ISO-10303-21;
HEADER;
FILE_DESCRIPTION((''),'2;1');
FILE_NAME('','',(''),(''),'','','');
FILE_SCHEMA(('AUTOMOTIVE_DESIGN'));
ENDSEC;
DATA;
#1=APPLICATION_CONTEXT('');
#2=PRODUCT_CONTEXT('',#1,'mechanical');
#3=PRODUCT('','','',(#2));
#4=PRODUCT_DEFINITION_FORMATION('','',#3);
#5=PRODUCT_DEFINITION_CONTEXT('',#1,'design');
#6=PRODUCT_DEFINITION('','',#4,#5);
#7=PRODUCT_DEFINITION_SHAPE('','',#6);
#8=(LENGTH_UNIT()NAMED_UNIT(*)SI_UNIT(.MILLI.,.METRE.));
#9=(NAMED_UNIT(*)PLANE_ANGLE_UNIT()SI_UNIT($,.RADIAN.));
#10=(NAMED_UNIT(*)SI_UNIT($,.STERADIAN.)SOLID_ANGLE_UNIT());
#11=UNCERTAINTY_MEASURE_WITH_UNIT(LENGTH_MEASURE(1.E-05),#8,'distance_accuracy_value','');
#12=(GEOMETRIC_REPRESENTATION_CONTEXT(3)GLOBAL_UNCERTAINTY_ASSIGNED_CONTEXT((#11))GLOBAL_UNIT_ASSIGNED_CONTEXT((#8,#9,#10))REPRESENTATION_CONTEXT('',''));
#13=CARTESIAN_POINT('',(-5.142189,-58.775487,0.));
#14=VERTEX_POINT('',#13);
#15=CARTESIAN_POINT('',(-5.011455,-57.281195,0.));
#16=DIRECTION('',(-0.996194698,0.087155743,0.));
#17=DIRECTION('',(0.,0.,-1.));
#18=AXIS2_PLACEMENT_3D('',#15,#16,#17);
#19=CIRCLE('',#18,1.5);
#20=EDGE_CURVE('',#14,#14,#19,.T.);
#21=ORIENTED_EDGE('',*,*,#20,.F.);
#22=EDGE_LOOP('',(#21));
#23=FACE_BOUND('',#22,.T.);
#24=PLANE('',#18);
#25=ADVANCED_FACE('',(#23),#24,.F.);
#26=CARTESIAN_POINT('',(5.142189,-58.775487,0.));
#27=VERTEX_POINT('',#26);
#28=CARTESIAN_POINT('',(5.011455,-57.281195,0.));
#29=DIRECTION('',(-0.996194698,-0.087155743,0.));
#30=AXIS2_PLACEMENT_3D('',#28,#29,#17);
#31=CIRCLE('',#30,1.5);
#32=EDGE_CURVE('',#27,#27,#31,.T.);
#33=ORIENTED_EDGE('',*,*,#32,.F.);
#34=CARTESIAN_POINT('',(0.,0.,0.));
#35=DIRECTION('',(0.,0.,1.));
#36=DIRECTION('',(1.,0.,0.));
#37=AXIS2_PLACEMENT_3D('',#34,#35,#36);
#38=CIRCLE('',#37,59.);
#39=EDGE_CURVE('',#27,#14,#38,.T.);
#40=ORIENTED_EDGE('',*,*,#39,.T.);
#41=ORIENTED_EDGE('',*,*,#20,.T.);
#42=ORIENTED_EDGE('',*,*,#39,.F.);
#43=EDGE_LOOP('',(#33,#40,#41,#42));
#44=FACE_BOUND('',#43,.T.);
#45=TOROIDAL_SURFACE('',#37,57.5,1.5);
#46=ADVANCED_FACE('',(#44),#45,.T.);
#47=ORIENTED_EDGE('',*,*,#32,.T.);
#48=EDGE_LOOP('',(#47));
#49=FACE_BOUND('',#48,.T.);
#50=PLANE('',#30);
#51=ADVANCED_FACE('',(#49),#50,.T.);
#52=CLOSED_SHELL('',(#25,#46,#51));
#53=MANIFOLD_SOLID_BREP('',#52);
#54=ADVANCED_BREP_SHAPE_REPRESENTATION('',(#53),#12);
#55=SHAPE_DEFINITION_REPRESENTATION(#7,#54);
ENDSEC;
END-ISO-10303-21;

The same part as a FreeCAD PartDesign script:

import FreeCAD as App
import Part
import Sketcher

V = App.Vector

doc = App.newDocument("Part")
params = doc.addObject("Spreadsheet::Sheet", "Params")
for row, (alias, value) in enumerate([
    ("sketch1_diameter", "3 mm"),
    ("revolution_angle", "175 deg"),
    ("sketch2_diameter", "3 mm"),
    ("revolution2_angle", "175 deg"),
], start=1):
    params.set(f"A{row}", alias)
    params.set(f"B{row}", "=" + value)
    params.setAlias(f"B{row}", alias)

body = doc.addObject("PartDesign::Body", "Body")

# Sketch on YZ plane
sketch1 = body.newObject("Sketcher::SketchObject", "Sketch")
sketch1.AttachmentSupport = (doc.getObject("YZ_Plane"), [""])
sketch1.MapMode = "FlatFace"
sketch1.addGeometry(Part.Circle(V(57.5, 0, 0), V(0, 0, 1), 1.5), False)
sketch1.addConstraint([
    Sketcher.Constraint("PointOnObject", 0, 3, -1),
    Sketcher.Constraint("Diameter", 0, 3.0),
    Sketcher.Constraint("DistanceX", -1, 1, 0, 3, 57.5),
])
sketch1.setExpression("Constraints[1]", "Params.sketch1_diameter")
revolution = body.newObject("PartDesign::Revolution", "Revolution")
revolution.Profile = sketch1
revolution.ReferenceAxis = (sketch1, ["V_Axis"])
revolution.setExpression("Angle", "Params.revolution_angle")
revolution.Reversed = True

# Sketch on YZ plane
sketch2 = body.newObject("Sketcher::SketchObject", "Sketch001")
sketch2.AttachmentSupport = (doc.getObject("YZ_Plane"), [""])
sketch2.MapMode = "FlatFace"
sketch2.addGeometry(Part.Circle(V(57.5, 0, 0), V(0, 0, 1), 1.5), False)
sketch2.addConstraint([
    Sketcher.Constraint("PointOnObject", 0, 3, -1),
    Sketcher.Constraint("Diameter", 0, 3.0),
    Sketcher.Constraint("DistanceX", -1, 1, 0, 3, 57.5),
])
sketch2.setExpression("Constraints[1]", "Params.sketch2_diameter")
revolution2 = body.newObject("PartDesign::Revolution", "Revolution001")
revolution2.Profile = sketch2
revolution2.ReferenceAxis = (sketch2, ["V_Axis"])
revolution2.setExpression("Angle", "Params.revolution2_angle")

doc.recompute()
